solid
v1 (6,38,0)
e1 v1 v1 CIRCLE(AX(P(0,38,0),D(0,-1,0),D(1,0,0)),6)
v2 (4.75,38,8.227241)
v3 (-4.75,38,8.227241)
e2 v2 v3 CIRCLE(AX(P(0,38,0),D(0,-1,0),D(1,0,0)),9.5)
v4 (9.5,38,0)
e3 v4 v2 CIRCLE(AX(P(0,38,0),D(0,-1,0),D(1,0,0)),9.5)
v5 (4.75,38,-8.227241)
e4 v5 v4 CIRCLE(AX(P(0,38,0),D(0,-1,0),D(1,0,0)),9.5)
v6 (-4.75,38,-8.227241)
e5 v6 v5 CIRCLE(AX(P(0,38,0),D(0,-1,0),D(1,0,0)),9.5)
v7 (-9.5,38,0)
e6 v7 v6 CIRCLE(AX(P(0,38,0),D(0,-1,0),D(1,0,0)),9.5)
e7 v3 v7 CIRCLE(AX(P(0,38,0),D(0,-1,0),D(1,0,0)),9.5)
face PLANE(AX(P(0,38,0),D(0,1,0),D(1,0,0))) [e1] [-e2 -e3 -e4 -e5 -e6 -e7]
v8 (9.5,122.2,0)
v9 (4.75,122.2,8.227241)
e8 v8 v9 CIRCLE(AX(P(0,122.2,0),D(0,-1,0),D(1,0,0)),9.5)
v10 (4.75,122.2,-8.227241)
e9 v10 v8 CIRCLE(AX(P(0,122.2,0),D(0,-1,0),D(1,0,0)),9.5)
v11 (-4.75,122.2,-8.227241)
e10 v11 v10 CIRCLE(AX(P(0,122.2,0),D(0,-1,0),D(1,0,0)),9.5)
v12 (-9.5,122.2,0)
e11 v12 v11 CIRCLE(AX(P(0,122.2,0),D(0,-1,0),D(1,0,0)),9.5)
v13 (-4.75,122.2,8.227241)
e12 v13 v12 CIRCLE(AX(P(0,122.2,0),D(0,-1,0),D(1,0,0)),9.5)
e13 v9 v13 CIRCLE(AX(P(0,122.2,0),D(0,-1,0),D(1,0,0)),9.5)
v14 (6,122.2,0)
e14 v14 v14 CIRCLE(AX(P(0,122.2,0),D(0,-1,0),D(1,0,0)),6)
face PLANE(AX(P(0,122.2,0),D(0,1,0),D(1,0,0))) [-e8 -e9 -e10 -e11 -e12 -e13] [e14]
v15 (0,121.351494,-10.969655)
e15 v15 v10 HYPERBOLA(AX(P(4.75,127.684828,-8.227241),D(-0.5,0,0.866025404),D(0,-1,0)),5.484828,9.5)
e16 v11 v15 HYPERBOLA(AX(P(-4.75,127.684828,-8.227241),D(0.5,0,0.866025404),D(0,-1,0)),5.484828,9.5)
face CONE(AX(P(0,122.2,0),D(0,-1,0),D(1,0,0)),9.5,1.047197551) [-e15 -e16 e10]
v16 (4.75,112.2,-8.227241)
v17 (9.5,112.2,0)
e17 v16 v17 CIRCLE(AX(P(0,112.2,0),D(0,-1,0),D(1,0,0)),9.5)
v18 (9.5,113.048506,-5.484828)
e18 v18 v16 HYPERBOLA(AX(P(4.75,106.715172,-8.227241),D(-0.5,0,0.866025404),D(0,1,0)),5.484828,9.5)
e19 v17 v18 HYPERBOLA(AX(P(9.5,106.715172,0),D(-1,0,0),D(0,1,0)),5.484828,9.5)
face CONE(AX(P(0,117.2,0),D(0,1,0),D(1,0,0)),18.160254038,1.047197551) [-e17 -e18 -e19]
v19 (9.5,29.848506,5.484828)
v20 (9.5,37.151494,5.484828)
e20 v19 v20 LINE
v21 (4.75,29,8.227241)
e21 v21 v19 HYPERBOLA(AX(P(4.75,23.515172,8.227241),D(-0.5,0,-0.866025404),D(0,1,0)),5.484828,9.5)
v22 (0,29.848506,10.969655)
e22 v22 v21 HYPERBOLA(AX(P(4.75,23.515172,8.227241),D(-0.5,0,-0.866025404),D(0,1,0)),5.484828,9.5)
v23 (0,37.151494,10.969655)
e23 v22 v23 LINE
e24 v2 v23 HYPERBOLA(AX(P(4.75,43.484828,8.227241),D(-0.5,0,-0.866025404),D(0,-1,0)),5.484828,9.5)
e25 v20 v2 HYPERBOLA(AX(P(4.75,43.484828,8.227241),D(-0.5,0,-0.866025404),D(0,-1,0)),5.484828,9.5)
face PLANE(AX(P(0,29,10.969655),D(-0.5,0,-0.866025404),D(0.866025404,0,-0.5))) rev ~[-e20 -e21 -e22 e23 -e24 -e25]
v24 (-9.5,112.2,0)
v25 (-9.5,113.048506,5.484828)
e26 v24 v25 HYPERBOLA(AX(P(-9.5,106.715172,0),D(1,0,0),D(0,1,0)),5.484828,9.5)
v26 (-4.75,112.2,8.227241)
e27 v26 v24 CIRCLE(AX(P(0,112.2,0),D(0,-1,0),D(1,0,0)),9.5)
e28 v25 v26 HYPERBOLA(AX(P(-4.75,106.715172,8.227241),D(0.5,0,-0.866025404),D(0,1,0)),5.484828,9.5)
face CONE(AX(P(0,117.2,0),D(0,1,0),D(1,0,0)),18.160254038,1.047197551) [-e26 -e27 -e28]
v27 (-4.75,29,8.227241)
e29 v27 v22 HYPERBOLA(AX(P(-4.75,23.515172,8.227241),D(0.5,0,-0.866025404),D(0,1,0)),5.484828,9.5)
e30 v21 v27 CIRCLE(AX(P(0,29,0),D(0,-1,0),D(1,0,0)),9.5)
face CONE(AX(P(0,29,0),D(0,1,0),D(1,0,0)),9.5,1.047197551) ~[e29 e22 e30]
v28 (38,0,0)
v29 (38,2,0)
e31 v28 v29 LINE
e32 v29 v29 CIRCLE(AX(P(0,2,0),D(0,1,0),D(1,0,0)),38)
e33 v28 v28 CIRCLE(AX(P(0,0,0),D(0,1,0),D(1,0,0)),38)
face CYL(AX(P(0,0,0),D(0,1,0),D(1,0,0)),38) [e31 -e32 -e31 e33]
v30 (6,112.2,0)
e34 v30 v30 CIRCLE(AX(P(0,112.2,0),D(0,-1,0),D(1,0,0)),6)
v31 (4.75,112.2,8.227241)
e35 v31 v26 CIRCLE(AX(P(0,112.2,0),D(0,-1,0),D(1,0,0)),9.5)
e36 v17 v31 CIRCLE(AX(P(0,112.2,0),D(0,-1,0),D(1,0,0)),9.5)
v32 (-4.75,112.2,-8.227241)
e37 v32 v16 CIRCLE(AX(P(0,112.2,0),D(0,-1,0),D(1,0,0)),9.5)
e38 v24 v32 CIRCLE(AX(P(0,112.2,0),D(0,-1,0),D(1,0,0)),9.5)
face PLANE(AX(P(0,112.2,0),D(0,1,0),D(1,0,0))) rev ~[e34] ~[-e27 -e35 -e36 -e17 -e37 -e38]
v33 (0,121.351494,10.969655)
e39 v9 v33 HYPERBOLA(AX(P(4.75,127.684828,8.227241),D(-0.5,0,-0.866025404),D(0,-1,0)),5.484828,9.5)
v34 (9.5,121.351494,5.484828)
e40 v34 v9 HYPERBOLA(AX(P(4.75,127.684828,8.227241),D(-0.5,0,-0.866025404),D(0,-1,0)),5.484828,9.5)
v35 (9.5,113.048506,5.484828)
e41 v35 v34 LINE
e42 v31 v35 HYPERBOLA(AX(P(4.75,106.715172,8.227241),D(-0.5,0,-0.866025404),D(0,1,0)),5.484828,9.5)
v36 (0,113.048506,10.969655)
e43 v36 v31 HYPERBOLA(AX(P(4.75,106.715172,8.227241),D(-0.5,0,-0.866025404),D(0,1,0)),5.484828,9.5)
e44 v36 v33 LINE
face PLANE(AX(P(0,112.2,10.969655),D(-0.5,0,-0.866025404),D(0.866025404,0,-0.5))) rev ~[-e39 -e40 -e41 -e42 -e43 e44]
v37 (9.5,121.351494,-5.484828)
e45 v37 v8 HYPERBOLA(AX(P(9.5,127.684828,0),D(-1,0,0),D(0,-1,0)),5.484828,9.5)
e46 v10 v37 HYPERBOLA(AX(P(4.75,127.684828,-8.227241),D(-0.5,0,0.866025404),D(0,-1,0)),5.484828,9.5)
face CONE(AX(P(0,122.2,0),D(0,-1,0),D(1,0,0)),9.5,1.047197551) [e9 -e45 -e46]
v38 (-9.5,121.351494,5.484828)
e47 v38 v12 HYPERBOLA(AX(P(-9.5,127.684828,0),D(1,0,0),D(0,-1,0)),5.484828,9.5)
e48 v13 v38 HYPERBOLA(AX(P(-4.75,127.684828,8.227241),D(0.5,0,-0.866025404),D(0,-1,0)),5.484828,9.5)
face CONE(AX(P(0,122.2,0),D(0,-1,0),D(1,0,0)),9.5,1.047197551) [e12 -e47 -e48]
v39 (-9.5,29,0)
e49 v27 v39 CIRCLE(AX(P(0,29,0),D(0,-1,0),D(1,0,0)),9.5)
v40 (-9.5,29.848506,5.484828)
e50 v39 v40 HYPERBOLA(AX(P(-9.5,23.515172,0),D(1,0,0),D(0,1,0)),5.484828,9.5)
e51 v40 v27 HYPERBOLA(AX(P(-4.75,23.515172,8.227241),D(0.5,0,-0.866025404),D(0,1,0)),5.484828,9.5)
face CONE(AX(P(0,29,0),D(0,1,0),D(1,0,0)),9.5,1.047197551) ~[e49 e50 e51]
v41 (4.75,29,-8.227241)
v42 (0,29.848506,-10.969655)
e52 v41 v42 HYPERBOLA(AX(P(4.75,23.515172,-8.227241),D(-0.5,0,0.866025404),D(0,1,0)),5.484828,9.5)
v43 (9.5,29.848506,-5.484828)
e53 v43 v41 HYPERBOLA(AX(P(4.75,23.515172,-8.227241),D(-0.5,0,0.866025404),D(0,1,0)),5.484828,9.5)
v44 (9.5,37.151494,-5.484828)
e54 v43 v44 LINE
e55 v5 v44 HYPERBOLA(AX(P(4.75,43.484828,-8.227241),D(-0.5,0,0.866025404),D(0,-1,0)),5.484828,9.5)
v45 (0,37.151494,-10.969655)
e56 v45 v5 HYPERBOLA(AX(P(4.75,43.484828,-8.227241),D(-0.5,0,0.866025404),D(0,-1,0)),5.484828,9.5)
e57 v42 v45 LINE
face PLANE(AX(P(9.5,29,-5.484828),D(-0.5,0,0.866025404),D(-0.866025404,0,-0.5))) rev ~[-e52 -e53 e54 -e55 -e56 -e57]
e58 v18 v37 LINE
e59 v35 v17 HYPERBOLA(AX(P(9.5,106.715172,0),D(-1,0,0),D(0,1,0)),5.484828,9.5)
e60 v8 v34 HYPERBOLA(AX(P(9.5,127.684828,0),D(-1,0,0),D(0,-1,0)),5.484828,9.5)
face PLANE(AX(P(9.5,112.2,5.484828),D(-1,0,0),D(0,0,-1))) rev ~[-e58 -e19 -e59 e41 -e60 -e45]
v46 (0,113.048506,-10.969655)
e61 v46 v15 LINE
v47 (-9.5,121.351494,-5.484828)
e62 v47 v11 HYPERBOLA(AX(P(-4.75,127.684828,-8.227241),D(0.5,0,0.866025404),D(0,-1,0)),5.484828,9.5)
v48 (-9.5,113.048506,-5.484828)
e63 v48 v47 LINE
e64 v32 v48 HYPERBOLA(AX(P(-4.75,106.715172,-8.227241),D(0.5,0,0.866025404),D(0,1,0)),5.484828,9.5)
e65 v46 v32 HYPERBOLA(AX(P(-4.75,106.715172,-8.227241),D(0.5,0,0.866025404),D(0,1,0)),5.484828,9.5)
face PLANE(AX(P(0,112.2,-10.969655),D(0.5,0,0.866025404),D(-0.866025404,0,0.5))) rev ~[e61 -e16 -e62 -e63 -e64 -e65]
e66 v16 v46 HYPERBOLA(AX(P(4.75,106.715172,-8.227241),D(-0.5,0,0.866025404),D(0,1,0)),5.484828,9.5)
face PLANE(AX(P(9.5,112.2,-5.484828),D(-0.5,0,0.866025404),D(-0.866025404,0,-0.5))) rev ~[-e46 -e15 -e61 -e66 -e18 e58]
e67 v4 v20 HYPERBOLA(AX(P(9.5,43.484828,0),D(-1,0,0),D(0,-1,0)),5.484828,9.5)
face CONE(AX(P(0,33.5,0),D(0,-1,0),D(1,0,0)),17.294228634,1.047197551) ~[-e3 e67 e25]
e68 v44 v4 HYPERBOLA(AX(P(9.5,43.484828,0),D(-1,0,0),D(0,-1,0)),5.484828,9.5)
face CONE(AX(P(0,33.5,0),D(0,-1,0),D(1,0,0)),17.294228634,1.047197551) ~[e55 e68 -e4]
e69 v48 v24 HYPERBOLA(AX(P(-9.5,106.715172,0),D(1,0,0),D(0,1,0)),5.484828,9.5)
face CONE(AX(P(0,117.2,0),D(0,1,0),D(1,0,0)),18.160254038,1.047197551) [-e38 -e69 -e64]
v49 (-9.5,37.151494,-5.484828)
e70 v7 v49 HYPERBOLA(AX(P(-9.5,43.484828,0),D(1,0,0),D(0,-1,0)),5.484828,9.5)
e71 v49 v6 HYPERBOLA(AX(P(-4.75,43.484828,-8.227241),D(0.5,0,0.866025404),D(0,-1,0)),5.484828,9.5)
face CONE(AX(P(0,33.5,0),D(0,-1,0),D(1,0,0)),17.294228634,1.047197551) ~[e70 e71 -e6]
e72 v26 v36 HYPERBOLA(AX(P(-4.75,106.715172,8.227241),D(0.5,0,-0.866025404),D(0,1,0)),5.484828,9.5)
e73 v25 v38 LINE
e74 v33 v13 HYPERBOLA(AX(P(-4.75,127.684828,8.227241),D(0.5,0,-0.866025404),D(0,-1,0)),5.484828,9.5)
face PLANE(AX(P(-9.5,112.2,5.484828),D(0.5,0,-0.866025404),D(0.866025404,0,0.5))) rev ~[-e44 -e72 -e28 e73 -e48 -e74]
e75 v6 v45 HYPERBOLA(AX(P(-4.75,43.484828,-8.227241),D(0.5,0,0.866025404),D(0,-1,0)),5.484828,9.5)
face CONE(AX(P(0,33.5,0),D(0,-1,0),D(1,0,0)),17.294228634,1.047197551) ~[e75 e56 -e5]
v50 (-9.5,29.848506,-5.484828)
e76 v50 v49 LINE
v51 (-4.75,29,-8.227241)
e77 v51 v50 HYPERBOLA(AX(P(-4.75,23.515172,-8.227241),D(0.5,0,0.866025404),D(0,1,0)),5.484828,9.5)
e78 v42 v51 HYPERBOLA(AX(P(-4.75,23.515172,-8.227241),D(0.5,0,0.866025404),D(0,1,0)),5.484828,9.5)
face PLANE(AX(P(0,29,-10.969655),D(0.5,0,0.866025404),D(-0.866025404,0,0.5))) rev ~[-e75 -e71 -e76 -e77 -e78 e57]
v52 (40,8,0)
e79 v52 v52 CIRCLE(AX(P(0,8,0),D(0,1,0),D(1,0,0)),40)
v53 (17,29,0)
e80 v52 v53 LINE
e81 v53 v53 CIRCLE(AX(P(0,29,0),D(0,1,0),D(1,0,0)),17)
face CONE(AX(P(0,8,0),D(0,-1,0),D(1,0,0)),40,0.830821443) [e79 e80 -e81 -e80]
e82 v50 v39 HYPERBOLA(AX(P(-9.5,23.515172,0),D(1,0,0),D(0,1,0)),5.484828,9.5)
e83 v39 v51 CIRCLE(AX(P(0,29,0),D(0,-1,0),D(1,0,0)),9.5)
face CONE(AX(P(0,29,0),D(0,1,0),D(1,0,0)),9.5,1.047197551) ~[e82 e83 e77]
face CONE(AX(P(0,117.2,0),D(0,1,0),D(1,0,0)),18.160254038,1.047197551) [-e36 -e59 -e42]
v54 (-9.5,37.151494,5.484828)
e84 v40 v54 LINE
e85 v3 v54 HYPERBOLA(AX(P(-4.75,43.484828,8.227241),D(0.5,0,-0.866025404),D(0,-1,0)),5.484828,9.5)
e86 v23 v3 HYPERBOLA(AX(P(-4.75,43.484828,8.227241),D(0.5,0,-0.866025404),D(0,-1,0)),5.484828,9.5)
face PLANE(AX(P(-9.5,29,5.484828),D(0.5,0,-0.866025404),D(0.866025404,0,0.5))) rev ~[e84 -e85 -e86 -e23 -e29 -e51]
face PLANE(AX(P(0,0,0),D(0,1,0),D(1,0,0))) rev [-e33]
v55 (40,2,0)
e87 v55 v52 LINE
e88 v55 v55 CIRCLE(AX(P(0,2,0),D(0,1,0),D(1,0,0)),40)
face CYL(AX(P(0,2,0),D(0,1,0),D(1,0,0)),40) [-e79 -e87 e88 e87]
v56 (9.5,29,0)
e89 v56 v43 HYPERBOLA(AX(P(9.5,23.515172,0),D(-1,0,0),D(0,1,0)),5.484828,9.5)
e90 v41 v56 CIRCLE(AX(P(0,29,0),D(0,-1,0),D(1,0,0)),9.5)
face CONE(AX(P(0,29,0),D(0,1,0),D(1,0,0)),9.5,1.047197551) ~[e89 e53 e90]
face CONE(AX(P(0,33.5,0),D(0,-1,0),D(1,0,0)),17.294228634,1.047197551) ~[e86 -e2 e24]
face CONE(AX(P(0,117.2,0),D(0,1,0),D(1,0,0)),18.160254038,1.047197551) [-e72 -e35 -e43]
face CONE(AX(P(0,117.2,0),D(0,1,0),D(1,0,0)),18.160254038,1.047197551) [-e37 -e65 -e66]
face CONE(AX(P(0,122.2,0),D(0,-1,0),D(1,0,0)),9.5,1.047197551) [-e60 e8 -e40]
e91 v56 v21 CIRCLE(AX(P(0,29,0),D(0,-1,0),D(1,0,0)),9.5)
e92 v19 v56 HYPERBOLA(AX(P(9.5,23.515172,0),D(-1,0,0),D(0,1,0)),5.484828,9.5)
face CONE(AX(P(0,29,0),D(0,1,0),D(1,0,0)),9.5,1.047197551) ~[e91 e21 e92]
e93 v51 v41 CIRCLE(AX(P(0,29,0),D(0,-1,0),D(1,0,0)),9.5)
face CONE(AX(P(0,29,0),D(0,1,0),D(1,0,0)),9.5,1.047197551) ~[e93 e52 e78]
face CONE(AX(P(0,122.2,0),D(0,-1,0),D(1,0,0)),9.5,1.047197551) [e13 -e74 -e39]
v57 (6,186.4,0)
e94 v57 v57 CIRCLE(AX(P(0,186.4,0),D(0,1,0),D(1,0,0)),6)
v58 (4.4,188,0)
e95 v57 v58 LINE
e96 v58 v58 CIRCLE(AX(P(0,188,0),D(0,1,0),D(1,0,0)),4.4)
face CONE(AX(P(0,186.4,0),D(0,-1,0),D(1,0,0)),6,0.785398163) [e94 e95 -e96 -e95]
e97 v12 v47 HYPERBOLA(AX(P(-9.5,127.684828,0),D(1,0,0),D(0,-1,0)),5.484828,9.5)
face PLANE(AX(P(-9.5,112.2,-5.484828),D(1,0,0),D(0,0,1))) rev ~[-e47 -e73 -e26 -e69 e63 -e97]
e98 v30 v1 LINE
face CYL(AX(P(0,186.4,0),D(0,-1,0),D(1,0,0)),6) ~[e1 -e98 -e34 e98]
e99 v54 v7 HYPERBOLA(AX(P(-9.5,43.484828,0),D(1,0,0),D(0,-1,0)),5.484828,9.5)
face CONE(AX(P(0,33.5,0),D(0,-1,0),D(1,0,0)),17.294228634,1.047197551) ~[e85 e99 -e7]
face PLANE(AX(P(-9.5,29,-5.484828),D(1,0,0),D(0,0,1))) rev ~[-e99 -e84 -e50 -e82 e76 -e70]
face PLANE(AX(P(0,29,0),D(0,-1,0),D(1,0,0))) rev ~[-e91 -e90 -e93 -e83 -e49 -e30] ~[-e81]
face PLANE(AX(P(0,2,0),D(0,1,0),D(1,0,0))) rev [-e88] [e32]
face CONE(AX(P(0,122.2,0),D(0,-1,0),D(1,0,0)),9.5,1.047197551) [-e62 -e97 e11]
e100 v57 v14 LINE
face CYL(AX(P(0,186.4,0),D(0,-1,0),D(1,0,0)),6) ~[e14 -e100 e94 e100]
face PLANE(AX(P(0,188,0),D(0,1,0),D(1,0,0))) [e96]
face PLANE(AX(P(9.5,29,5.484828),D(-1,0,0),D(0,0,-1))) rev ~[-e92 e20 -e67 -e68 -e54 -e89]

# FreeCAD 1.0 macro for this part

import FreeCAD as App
import Part
import Sketcher
from FreeCAD import Vector
Q = App.Units.Quantity

doc = App.newDocument("Part")
body = doc.addObject("PartDesign::Body", "Body")

# Sketch on XY plane
sketch1 = body.newObject("Sketcher::SketchObject", "Sketch")
sketch1.AttachmentSupport = (doc.getObject("XY_Plane"), [""])
sketch1.MapMode = "FlatFace"
sketch1.addGeometry([
    Part.LineSegment(Vector(-38, 0, 0), Vector(0, 0, 0)),  # 0
    Part.LineSegment(Vector(0, 0, 0), Vector(0, 188, 0)),  # 1
    Part.LineSegment(Vector(0, 188, 0), Vector(-4.4, 188, 0)),  # 2
    Part.LineSegment(Vector(-4.4, 188, 0), Vector(-6, 186.4, 0)),  # 3
    Part.LineSegment(Vector(-6, 186.4, 0), Vector(-6, 29, 0)),  # 4
    Part.LineSegment(Vector(-6, 29, 0), Vector(-17, 29, 0)),  # 5
    Part.LineSegment(Vector(-17, 29, 0), Vector(-40, 8, 0)),  # 6
    Part.LineSegment(Vector(-40, 8, 0), Vector(-40, 2, 0)),  # 7
    Part.LineSegment(Vector(-40, 2, 0), Vector(-38, 2, 0)),  # 8
    Part.LineSegment(Vector(-38, 2, 0), Vector(-38, 0, 0)),  # 9
], False)
sketch1.addConstraint([
    Sketcher.Constraint("Coincident", 0, 2, 1, 1),
    Sketcher.Constraint("Coincident", 1, 2, 2, 1),
    Sketcher.Constraint("Coincident", 2, 2, 3, 1),
    Sketcher.Constraint("Coincident", 3, 2, 4, 1),
    Sketcher.Constraint("Coincident", 4, 2, 5, 1),
    Sketcher.Constraint("Coincident", 5, 2, 6, 1),
    Sketcher.Constraint("Coincident", 6, 2, 7, 1),
    Sketcher.Constraint("Coincident", 7, 2, 8, 1),
    Sketcher.Constraint("Coincident", 8, 2, 9, 1),
    Sketcher.Constraint("Coincident", 9, 2, 0, 1),
    Sketcher.Constraint("Horizontal", 0),
    Sketcher.Constraint("Vertical", 1),
    Sketcher.Constraint("Horizontal", 2),
    Sketcher.Constraint("Vertical", 4),
    Sketcher.Constraint("Horizontal", 5),
    Sketcher.Constraint("Vertical", 7),
    Sketcher.Constraint("Horizontal", 8),
    Sketcher.Constraint("Vertical", 9),
    Sketcher.Constraint("Coincident", 0, 2, -1, 1),
    Sketcher.Constraint("Equal", 8, 9),
    Sketcher.Constraint("DistanceX", 0, 1, 0, 2, Q("38 mm")),
    Sketcher.Constraint("DistanceX", 5, 2, 5, 1, Q("11 mm")),
    Sketcher.Constraint("DistanceX", 8, 1, 8, 2, Q("2 mm")),
    Sketcher.Constraint("DistanceY", 1, 1, 1, 2, Q("188 mm")),
    Sketcher.Constraint("DistanceY", 7, 2, 7, 1, Q("6 mm")),
    Sketcher.Constraint("Angle", 3, Q("-135 deg")),
    Sketcher.Constraint("DistanceX", 2, 2, 2, 1, Q("4.4 mm")),
    Sketcher.Constraint("DistanceY", 4, 2, 4, 1, Q("157.4 mm")),
    Sketcher.Constraint("DistanceX", 3, 2, -1, 1, Q("6 mm")),
])
revolution = body.newObject("PartDesign::Revolution", "Revolution")
revolution.Profile = sketch1
revolution.ReferenceAxis = (sketch1, ["V_Axis"])
revolution.Angle = 360

# Sketch on XZ plane
sketch2 = body.newObject("Sketcher::SketchObject", "Sketch001")
sketch2.AttachmentSupport = (doc.getObject("XZ_Plane"), [""])
sketch2.MapMode = "FlatFace"
sketch2.AttachmentOffset = App.Placement(Vector(0, 0, -29), App.Rotation())
sketch2.addGeometry([
    Part.LineSegment(Vector(0, -10.969655, 0), Vector(-9.5, -5.484828, 0)),  # 0
    Part.LineSegment(Vector(-9.5, -5.484828, 0), Vector(-9.5, 5.484828, 0)),  # 1
    Part.LineSegment(Vector(-9.5, 5.484828, 0), Vector(0, 10.969655, 0)),  # 2
    Part.LineSegment(Vector(0, 10.969655, 0), Vector(9.5, 5.484828, 0)),  # 3
    Part.LineSegment(Vector(9.5, 5.484828, 0), Vector(9.5, -5.484828, 0)),  # 4
    Part.LineSegment(Vector(9.5, -5.484828, 0), Vector(0, -10.969655, 0)),  # 5
], False)
sketch2.addConstraint([
    Sketcher.Constraint("Coincident", 0, 2, 1, 1),
    Sketcher.Constraint("Coincident", 1, 2, 2, 1),
    Sketcher.Constraint("Coincident", 2, 2, 3, 1),
    Sketcher.Constraint("Coincident", 3, 2, 4, 1),
    Sketcher.Constraint("Coincident", 4, 2, 5, 1),
    Sketcher.Constraint("Coincident", 5, 2, 0, 1),
    Sketcher.Constraint("Vertical", 1),
    Sketcher.Constraint("Vertical", 4),
    Sketcher.Constraint("Symmetric", 0, 2, 3, 2, -1, 1),
    Sketcher.Constraint("Symmetric", 2, 2, 5, 2, -1, 1),
    Sketcher.Constraint("PointOnObject", 2, 2, -2),
    Sketcher.Constraint("Parallel", 2, 5),
    Sketcher.Constraint("Horizontal", 1, 2, 3, 2),
    Sketcher.Constraint("Angle", 0, Q("150 deg")),
    Sketcher.Constraint("DistanceX", 1, 2, 3, 2, Q("19 mm")),
    Sketcher.Constraint("DistanceY", 1, 1, 1, 2, Q("10.969655 mm")),
])
pad1 = body.newObject("PartDesign::Pad", "Pad")
pad1.Profile = sketch2
pad1.Length = 9
pad1.Reversed = True

# Sketch on XZ plane
sketch3 = body.newObject("Sketcher::SketchObject", "Sketch002")
sketch3.AttachmentSupport = (doc.getObject("XZ_Plane"), [""])
sketch3.MapMode = "FlatFace"
sketch3.AttachmentOffset = App.Placement(Vector(0, 0, -112.2), App.Rotation())
sketch3.addGeometry([
    Part.LineSegment(Vector(9.5, -5.484828, 0), Vector(0, -10.969655, 0)),  # 0
    Part.LineSegment(Vector(0, -10.969655, 0), Vector(-9.5, -5.484828, 0)),  # 1
    Part.LineSegment(Vector(-9.5, -5.484828, 0), Vector(-9.5, 5.484828, 0)),  # 2
    Part.LineSegment(Vector(-9.5, 5.484828, 0), Vector(0, 10.969655, 0)),  # 3
    Part.LineSegment(Vector(0, 10.969655, 0), Vector(9.5, 5.484828, 0)),  # 4
    Part.LineSegment(Vector(9.5, 5.484828, 0), Vector(9.5, -5.484828, 0)),  # 5
], False)
sketch3.addConstraint([
    Sketcher.Constraint("Coincident", 0, 2, 1, 1),
    Sketcher.Constraint("Coincident", 1, 2, 2, 1),
    Sketcher.Constraint("Coincident", 2, 2, 3, 1),
    Sketcher.Constraint("Coincident", 3, 2, 4, 1),
    Sketcher.Constraint("Coincident", 4, 2, 5, 1),
    Sketcher.Constraint("Coincident", 5, 2, 0, 1),
    Sketcher.Constraint("Vertical", 2),
    Sketcher.Constraint("Vertical", 5),
    Sketcher.Constraint("Symmetric", 0, 2, 3, 2, -1, 1),
    Sketcher.Constraint("Symmetric", 1, 2, 4, 2, -1, 1),
    Sketcher.Constraint("PointOnObject", 0, 2, -2),
    Sketcher.Constraint("Parallel", 0, 3),
    Sketcher.Constraint("Horizontal", 2, 2, 4, 2),
    Sketcher.Constraint("Angle", 0, Q("-150 deg")),
    Sketcher.Constraint("DistanceX", 2, 2, 4, 2, Q("19 mm")),
    Sketcher.Constraint("DistanceY", 2, 1, 2, 2, Q("10.969655 mm")),
])
pad2 = body.newObject("PartDesign::Pad", "Pad001")
pad2.Profile = sketch3
pad2.Length = 10
pad2.Reversed = True

# Sketch on XY plane
sketch4 = body.newObject("Sketcher::SketchObject", "Sketch003")
sketch4.AttachmentSupport = (doc.getObject("XY_Plane"), [""])
sketch4.MapMode = "FlatFace"
sketch4.addGeometry([
    Part.LineSegment(Vector(-9.5, 122.2, 0), Vector(-18.160254, 122.2, 0)),  # 0
    Part.LineSegment(Vector(-18.160254, 122.2, 0), Vector(-18.160254, 117.2, 0)),  # 1
    Part.LineSegment(Vector(-18.160254, 117.2, 0), Vector(-9.5, 122.2, 0)),  # 2
    Part.LineSegment(Vector(-18.160254, 117.2, 0), Vector(-18.160254, 112.2, 0)),  # 3
    Part.LineSegment(Vector(-18.160254, 112.2, 0), Vector(-9.5, 112.2, 0)),  # 4
    Part.LineSegment(Vector(-9.5, 112.2, 0), Vector(-18.160254, 117.2, 0)),  # 5
    Part.LineSegment(Vector(-17.294229, 38, 0), Vector(-17.294229, 33.5, 0)),  # 6
    Part.LineSegment(Vector(-17.294229, 33.5, 0), Vector(-9.5, 38, 0)),  # 7
    Part.LineSegment(Vector(-9.5, 38, 0), Vector(-17.294229, 38, 0)),  # 8
    Part.LineSegment(Vector(-17.294229, 33.5, 0), Vector(-17.294229, 29, 0)),  # 9
    Part.LineSegment(Vector(-17.294229, 29, 0), Vector(-9.5, 29, 0)),  # 10
    Part.LineSegment(Vector(-9.5, 29, 0), Vector(-17.294229, 33.5, 0)),  # 11
], False)
sketch4.addConstraint([
    Sketcher.Constraint("Coincident", 0, 2, 1, 1),
    Sketcher.Constraint("Coincident", 1, 2, 2, 1),
    Sketcher.Constraint("Coincident", 2, 2, 0, 1),
    Sketcher.Constraint("Coincident", 3, 2, 4, 1),
    Sketcher.Constraint("Coincident", 4, 2, 5, 1),
    Sketcher.Constraint("Coincident", 5, 2, 3, 1),
    Sketcher.Constraint("Coincident", 6, 2, 7, 1),
    Sketcher.Constraint("Coincident", 7, 2, 8, 1),
    Sketcher.Constraint("Coincident", 8, 2, 6, 1),
    Sketcher.Constraint("Coincident", 9, 2, 10, 1),
    Sketcher.Constraint("Coincident", 10, 2, 11, 1),
    Sketcher.Constraint("Coincident", 11, 2, 9, 1),
    Sketcher.Constraint("Horizontal", 0),
    Sketcher.Constraint("Vertical", 1),
    Sketcher.Constraint("Vertical", 3),
    Sketcher.Constraint("Horizontal", 4),
    Sketcher.Constraint("Vertical", 6),
    Sketcher.Constraint("Horizontal", 8),
    Sketcher.Constraint("Vertical", 9),
    Sketcher.Constraint("Horizontal", 10),
    Sketcher.Constraint("Coincident", 5, 2, 1, 2),
    Sketcher.Constraint("Coincident", 11, 2, 6, 2),
    Sketcher.Constraint("Parallel", 2, 7),
    Sketcher.Constraint("Parallel", 5, 11),
    Sketcher.Constraint("Vertical", 2, 2, 4, 2),
    Sketcher.Constraint("Vertical", 4, 2, 7, 2),
    Sketcher.Constraint("Vertical", 7, 2, 10, 2),
    Sketcher.Constraint("Equal", 1, 3),
    Sketcher.Constraint("DistanceY", 1, 2, 1, 1, Q("5 mm")),
    Sketcher.Constraint("Angle", 2, Q("30 deg")),
    Sketcher.Constraint("Distance", 7, Q("9 mm")),
    Sketcher.Constraint("DistanceY", -1, 1, 7, 2, Q("38 mm")),
    Sketcher.Constraint("DistanceY", -1, 1, 0, 2, Q("122.2 mm")),
    Sketcher.Constraint("DistanceX", 2, 2, -1, 1, Q("9.5 mm")),
])
groove = body.newObject("PartDesign::Groove", "Groove")
groove.Profile = sketch4
groove.ReferenceAxis = (sketch4, ["V_Axis"])
groove.Angle = 360

doc.recompute()
